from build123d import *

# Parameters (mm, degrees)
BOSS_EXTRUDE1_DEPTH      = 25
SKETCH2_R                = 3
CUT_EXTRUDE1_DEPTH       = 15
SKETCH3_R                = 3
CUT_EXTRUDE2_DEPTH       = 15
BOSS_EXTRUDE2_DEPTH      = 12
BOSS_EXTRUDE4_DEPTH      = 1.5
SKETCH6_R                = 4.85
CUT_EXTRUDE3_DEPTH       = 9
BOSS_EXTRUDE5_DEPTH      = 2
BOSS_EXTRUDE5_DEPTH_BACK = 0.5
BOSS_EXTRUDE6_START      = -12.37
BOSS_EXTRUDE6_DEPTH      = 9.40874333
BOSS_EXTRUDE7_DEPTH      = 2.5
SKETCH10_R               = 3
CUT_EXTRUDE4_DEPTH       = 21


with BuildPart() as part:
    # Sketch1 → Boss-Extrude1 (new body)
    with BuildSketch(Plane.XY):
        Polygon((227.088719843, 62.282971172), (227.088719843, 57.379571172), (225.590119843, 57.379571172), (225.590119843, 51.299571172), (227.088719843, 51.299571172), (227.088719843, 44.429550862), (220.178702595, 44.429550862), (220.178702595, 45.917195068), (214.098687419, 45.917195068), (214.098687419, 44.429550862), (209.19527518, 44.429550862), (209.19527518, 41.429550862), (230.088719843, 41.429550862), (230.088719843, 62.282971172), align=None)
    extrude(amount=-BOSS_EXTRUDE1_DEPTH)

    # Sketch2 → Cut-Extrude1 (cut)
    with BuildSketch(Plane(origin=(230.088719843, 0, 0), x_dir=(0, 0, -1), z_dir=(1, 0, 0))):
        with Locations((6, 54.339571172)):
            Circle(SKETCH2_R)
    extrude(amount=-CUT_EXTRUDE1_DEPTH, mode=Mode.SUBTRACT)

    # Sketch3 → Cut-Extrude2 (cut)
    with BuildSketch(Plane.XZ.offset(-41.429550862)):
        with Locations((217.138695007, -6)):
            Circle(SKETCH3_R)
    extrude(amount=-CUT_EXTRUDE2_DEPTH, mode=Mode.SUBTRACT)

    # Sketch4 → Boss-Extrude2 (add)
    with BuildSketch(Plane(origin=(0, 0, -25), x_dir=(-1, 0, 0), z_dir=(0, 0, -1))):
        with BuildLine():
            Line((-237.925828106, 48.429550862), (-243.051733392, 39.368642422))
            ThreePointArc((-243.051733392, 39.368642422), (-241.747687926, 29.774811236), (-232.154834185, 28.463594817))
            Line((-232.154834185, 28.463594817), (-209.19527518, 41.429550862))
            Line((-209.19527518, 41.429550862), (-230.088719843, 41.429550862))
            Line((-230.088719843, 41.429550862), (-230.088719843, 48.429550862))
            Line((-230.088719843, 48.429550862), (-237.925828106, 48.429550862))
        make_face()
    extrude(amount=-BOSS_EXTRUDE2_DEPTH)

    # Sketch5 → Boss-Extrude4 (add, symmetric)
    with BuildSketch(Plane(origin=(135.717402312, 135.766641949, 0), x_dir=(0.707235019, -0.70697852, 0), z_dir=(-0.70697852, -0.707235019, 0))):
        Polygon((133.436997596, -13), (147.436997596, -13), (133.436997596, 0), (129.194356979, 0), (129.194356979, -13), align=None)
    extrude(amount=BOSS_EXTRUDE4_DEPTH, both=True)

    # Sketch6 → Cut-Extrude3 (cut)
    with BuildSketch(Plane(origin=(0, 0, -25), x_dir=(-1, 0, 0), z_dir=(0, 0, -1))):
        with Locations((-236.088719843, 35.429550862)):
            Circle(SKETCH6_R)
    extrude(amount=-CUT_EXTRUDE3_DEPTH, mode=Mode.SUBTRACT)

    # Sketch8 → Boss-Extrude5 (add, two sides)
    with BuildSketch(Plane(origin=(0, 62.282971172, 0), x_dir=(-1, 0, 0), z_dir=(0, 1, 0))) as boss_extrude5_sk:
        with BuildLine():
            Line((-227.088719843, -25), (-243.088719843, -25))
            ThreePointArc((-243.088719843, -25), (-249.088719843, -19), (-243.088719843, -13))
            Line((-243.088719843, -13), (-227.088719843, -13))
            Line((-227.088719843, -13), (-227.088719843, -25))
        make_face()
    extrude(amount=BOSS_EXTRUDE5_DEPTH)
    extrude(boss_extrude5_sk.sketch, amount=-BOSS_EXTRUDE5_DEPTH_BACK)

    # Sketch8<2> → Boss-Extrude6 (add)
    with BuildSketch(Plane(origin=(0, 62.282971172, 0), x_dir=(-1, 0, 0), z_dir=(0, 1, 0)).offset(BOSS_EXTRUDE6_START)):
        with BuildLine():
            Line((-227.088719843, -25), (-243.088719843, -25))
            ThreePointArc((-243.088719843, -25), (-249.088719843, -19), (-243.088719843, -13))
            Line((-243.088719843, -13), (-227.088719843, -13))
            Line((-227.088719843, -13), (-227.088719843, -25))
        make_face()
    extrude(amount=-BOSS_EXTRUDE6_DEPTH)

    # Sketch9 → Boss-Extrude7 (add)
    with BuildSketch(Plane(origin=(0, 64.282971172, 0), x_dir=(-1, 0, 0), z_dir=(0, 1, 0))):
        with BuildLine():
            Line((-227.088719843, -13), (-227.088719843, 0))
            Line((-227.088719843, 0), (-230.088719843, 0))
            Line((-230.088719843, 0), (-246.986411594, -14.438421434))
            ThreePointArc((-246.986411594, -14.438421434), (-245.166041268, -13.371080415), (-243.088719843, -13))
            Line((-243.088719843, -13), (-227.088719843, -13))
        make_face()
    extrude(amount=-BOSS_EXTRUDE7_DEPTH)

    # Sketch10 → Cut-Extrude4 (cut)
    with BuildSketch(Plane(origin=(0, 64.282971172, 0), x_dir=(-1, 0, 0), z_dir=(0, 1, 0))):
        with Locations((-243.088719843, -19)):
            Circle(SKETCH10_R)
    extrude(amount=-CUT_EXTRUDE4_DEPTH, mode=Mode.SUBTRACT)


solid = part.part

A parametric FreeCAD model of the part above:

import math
import FreeCAD as App
import Part
import Sketcher
from FreeCAD import Vector

doc = App.newDocument("Part")
params = doc.addObject("Spreadsheet::Sheet", "Params")
for row, (alias, value) in enumerate([
    ("sketch1_width", "3 mm"),
    ("sketch1_height", "6.08 mm"),
    ("pad1_length", "25 mm"),
    ("sketch2_diameter", "6 mm"),
    ("pocket1_length", "15 mm"),
    ("sketch3_diameter", "6 mm"),
    ("pocket2_length", "15 mm"),
    ("sketch4_radius", "8 mm"),
    ("sketch4_height", "7 mm"),
    ("pad2_length", "12 mm"),
    ("sketch5_height", "13 mm"),
    ("pad3_length", "3 mm"),
    ("sketch6_diameter", "9.7 mm"),
    ("pocket3_length", "9 mm"),
    ("sketch7_radius", "6 mm"),
    ("sketch7_width", "16 mm"),
    ("pad4_length", "2 mm"),
    ("pad4_length2", "0.5 mm"),
    ("sketch8_radius", "6 mm"),
    ("sketch8_width", "16 mm"),
    ("pad5_length", "9.408743 mm"),
    ("sketch9_radius", "6 mm"),
    ("sketch9_width", "3 mm"),
    ("sketch9_width2", "16 mm"),
    ("sketch9_height", "13 mm"),
    ("pad6_length", "2.5 mm"),
    ("sketch10_diameter", "6 mm"),
    ("pocket4_length", "21 mm"),
], start=1):
    params.set(f"A{row}", alias)
    params.set(f"B{row}", "=" + value)
    params.setAlias(f"B{row}", alias)

body = doc.addObject("PartDesign::Body", "Body")

sketch1 = body.newObject("Sketcher::SketchObject", "Sketch")
sketch1.AttachmentSupport = (doc.getObject("XY_Plane"), [""])
sketch1.MapMode = "FlatFace"
sketch1.addGeometry([
    Part.LineSegment(Vector(227.1, 62.3, 0), Vector(227.1, 57.4, 0)),
    Part.LineSegment(Vector(227.1, 57.4, 0), Vector(225.6, 57.4, 0)),
    Part.LineSegment(Vector(225.6, 57.4, 0), Vector(225.6, 51.3, 0)),
    Part.LineSegment(Vector(225.6, 51.3, 0), Vector(227.1, 51.3, 0)),
    Part.LineSegment(Vector(227.1, 51.3, 0), Vector(227.1, 44.4, 0)),
    Part.LineSegment(Vector(227.1, 44.4, 0), Vector(220.2, 44.4, 0)),
    Part.LineSegment(Vector(220.2, 44.4, 0), Vector(220.2, 45.9, 0)),
    Part.LineSegment(Vector(220.2, 45.9, 0), Vector(214.1, 45.9, 0)),
    Part.LineSegment(Vector(214.1, 45.9, 0), Vector(214.1, 44.4, 0)),
    Part.LineSegment(Vector(214.1, 44.4, 0), Vector(209.2, 44.4, 0)),
    Part.LineSegment(Vector(209.2, 44.4, 0), Vector(209.2, 41.4, 0)),
    Part.LineSegment(Vector(209.2, 41.4, 0), Vector(230.1, 41.4, 0)),
    Part.LineSegment(Vector(230.1, 41.4, 0), Vector(230.1, 62.3, 0)),
    Part.LineSegment(Vector(230.1, 62.3, 0), Vector(227.1, 62.3, 0)),
], False)
sketch1.addConstraint([
    Sketcher.Constraint("Coincident", 0, 2, 1, 1),
    Sketcher.Constraint("Coincident", 1, 2, 2, 1),
    Sketcher.Constraint("Coincident", 2, 2, 3, 1),
    Sketcher.Constraint("Coincident", 3, 2, 4, 1),
    Sketcher.Constraint("Coincident", 4, 2, 5, 1),
    Sketcher.Constraint("Coincident", 5, 2, 6, 1),
    Sketcher.Constraint("Coincident", 6, 2, 7, 1),
    Sketcher.Constraint("Coincident", 7, 2, 8, 1),
    Sketcher.Constraint("Coincident", 8, 2, 9, 1),
    Sketcher.Constraint("Coincident", 9, 2, 10, 1),
    Sketcher.Constraint("Coincident", 10, 2, 11, 1),
    Sketcher.Constraint("Coincident", 11, 2, 12, 1),
    Sketcher.Constraint("Coincident", 12, 2, 13, 1),
    Sketcher.Constraint("Coincident", 13, 2, 0, 1),
    Sketcher.Constraint("Vertical", 0),
    Sketcher.Constraint("Horizontal", 1),
    Sketcher.Constraint("Vertical", 2),
    Sketcher.Constraint("Horizontal", 3),
    Sketcher.Constraint("Vertical", 4),
    Sketcher.Constraint("Horizontal", 5),
    Sketcher.Constraint("Vertical", 6),
    Sketcher.Constraint("Horizontal", 7),
    Sketcher.Constraint("Vertical", 8),
    Sketcher.Constraint("Horizontal", 9),
    Sketcher.Constraint("Vertical", 10),
    Sketcher.Constraint("Horizontal", 11),
    Sketcher.Constraint("Vertical", 12),
    Sketcher.Constraint("Horizontal", 13),
    Sketcher.Constraint("Horizontal", 5, 2, 8, 2),
    Sketcher.Constraint("Vertical", 0, 2, 3, 2),
    Sketcher.Constraint("Equal", 13, 10),
    Sketcher.Constraint("DistanceX", 13, 2, 13, 1, 3.0),
    Sketcher.Constraint("DistanceY", 2, 2, 2, 1, 6.08),
    Sketcher.Constraint("DistanceX", 1, 2, 1, 1, 1.4986),
    Sketcher.Constraint("DistanceY", 0, 2, 0, 1, 4.9034),
    Sketcher.Constraint("DistanceY", 4, 2, 4, 1, 6.87002),
    Sketcher.Constraint("DistanceX", 5, 2, 5, 1, 6.910017),
    Sketcher.Constraint("DistanceX", 7, 2, 7, 1, 6.080015),
    Sketcher.Constraint("DistanceX", 9, 2, 9, 1, 4.903412),
    Sketcher.Constraint("DistanceY", 6, 1, 6, 2, 1.487644),
    Sketcher.Constraint("DistanceX", -1, 1, 0, 2, 227.08872),
    Sketcher.Constraint("DistanceY", -1, 1, 0, 2, 57.379571),
])
sketch1.setExpression("Constraints[31]", "Params.sketch1_width")
sketch1.setExpression("Constraints[32]", "Params.sketch1_height")
pad1 = body.newObject("PartDesign::Pad", "Pad")
pad1.Profile = sketch1
pad1.setExpression("Length", "Params.pad1_length")
pad1.Reversed = True

sketch2 = body.newObject("Sketcher::SketchObject", "Sketch001")
sketch2.AttachmentSupport = (doc.getObject("YZ_Plane"), [""])
sketch2.MapMode = "FlatFace"
sketch2.AttachmentOffset = App.Placement(Vector(0, 0, 230.08872), App.Rotation())
sketch2.addGeometry(Part.Circle(Vector(54.3, -6, 0), Vector(0, 0, 1), 3), False)
sketch2.addConstraint([
    Sketcher.Constraint("Diameter", 0, 6.0),
    Sketcher.Constraint("DistanceY", 0, 3, -1, 1, 6.0),
    Sketcher.Constraint("DistanceX", -1, 1, 0, 3, 54.339571),
])
sketch2.setExpression("Constraints[0]", "Params.sketch2_diameter")
pocket1 = body.newObject("PartDesign::Pocket", "Pocket")
pocket1.Profile = sketch2
pocket1.setExpression("Length", "Params.pocket1_length")

sketch3 = body.newObject("Sketcher::SketchObject", "Sketch002")
sketch3.AttachmentSupport = (doc.getObject("XZ_Plane"), [""])
sketch3.MapMode = "FlatFace"
sketch3.AttachmentOffset = App.Placement(Vector(0, 0, -41.429551), App.Rotation())
sketch3.addGeometry(Part.Circle(Vector(217.1, -6, 0), Vector(0, 0, 1), 3), False)
sketch3.addConstraint([
    Sketcher.Constraint("Diameter", 0, 6.0),
    Sketcher.Constraint("DistanceY", 0, 3, -1, 1, 6.0),
    Sketcher.Constraint("DistanceX", -1, 1, 0, 3, 217.138695),
])
sketch3.setExpression("Constraints[0]", "Params.sketch3_diameter")
pocket2 = body.newObject("PartDesign::Pocket", "Pocket001")
pocket2.Profile = sketch3
pocket2.setExpression("Length", "Params.pocket2_length")

sketch4 = body.newObject("Sketcher::SketchObject", "Sketch003")
sketch4.AttachmentSupport = (doc.getObject("XY_Plane"), [""])
sketch4.MapMode = "FlatFace"
sketch4.AttachmentOffset = App.Placement(Vector(0, 0, -25), App.Rotation())
sketch4.addGeometry([
    Part.LineSegment(Vector(238, 48, 0), Vector(243, 39, 0)),
    Part.ArcOfCircle(Part.Circle(Vector(236, 35, 0), Vector(0, 0, 1), 8), math.radians(-119), math.radians(29)),
    Part.LineSegment(Vector(232, 28, 0), Vector(209, 41, 0)),
    Part.LineSegment(Vector(209, 41, 0), Vector(230, 41, 0)),
    Part.LineSegment(Vector(230, 41, 0), Vector(230, 48, 0)),
    Part.LineSegment(Vector(230, 48, 0), Vector(238, 48, 0)),
], False)
sketch4.addConstraint([
    Sketcher.Constraint("Tangent", 0, 2, 1, 2),
    Sketcher.Constraint("Tangent", 1, 1, 2, 1),
    Sketcher.Constraint("Coincident", 2, 2, 3, 1),
    Sketcher.Constraint("Coincident", 3, 2, 4, 1),
    Sketcher.Constraint("Coincident", 4, 2, 5, 1),
    Sketcher.Constraint("Coincident", 5, 2, 0, 1),
    Sketcher.Constraint("Horizontal", 3),
    Sketcher.Constraint("Vertical", 4),
    Sketcher.Constraint("Horizontal", 5),
    Sketcher.Constraint("Radius", 1, 8.0),
    Sketcher.Constraint("DistanceY", 4, 1, 4, 2, 7.0),
    Sketcher.Constraint("DistanceY", 1, 3, 2, 2, 6.0),
    Sketcher.Constraint("DistanceX", 3, 2, 1, 3, 6.0),
    Sketcher.Constraint("DistanceX", 5, 1, 5, 2, 7.837108),
    Sketcher.Constraint("DistanceX", 1, 1, 0, 2, 10.896899),
    Sketcher.Constraint("DistanceX", -1, 1, 1, 3, 236.08872),
    Sketcher.Constraint("DistanceY", -1, 1, 1, 3, 35.429551),
])
sketch4.setExpression("Constraints[9]", "Params.sketch4_radius")
sketch4.setExpression("Constraints[10]", "Params.sketch4_height")
pad2 = body.newObject("PartDesign::Pad", "Pad001")
pad2.Profile = sketch4
pad2.setExpression("Length", "Params.pad2_length")

sketch5 = body.newObject("Sketcher::SketchObject", "Sketch004")
sketch5.Placement = App.Placement(Vector(135.717402, 135.766642, 0), App.Rotation(Vector(0.707235019, -0.70697852, 0), Vector(0, 0, 1), Vector(-0.70697852, -0.707235019, 0), "ZXY"))
sketch5.addGeometry([
    Part.LineSegment(Vector(147.4, -13, 0), Vector(133.4, 0, 0)),
    Part.LineSegment(Vector(133.4, 0, 0), Vector(129.2, 0, 0)),
    Part.LineSegment(Vector(129.2, 0, 0), Vector(129.2, -13, 0)),
    Part.LineSegment(Vector(129.2, -13, 0), Vector(147.4, -13, 0)),
], False)
sketch5.addConstraint([
    Sketcher.Constraint("Coincident", 0, 2, 1, 1),
    Sketcher.Constraint("Coincident", 1, 2, 2, 1),
    Sketcher.Constraint("Coincident", 2, 2, 3, 1),
    Sketcher.Constraint("Coincident", 3, 2, 0, 1),
    Sketcher.Constraint("Horizontal", 1),
    Sketcher.Constraint("Vertical", 2),
    Sketcher.Constraint("Horizontal", 3),
    Sketcher.Constraint("PointOnObject", 0, 2, -1),
    Sketcher.Constraint("DistanceY", 2, 2, 2, 1, 13.0),
    Sketcher.Constraint("DistanceX", 0, 2, 3, 2, 14.0),
    Sketcher.Constraint("DistanceX", 1, 2, 1, 1, 4.242641),
    Sketcher.Constraint("DistanceX", -1, 1, 0, 2, 133.436998),
])
sketch5.setExpression("Constraints[8]", "Params.sketch5_height")
pad3 = body.newObject("PartDesign::Pad", "Pad002")
pad3.Profile = sketch5
pad3.setExpression("Length", "Params.pad3_length")
pad3.Midplane = True

sketch6 = body.newObject("Sketcher::SketchObject", "Sketch005")
sketch6.AttachmentSupport = (doc.getObject("XY_Plane"), [""])
sketch6.MapMode = "FlatFace"
sketch6.AttachmentOffset = App.Placement(Vector(0, 0, -25), App.Rotation())
sketch6.addGeometry(Part.Circle(Vector(236.1, 35.4, 0), Vector(0, 0, 1), 4.8), False)
sketch6.addConstraint([
    Sketcher.Constraint("Diameter", 0, 9.7),
    Sketcher.Constraint("DistanceX", -1, 1, 0, 3, 236.08872),
    Sketcher.Constraint("DistanceY", -1, 1, 0, 3, 35.429551),
])
sketch6.setExpression("Constraints[0]", "Params.sketch6_diameter")
pocket3 = body.newObject("PartDesign::Pocket", "Pocket002")
pocket3.Profile = sketch6
pocket3.setExpression("Length", "Params.pocket3_length")
pocket3.Reversed = True

sketch7 = body.newObject("Sketcher::SketchObject", "Sketch006")
sketch7.AttachmentSupport = (doc.getObject("XZ_Plane"), [""])
sketch7.MapMode = "FlatFace"
sketch7.AttachmentOffset = App.Placement(Vector(0, 0, -62.282971), App.Rotation())
sketch7.addGeometry([
    Part.LineSegment(Vector(243, -25, 0), Vector(227, -25, 0)),
    Part.LineSegment(Vector(227, -25, 0), Vector(227, -13, 0)),
    Part.LineSegment(Vector(227, -13, 0), Vector(243, -13, 0)),
    Part.ArcOfCircle(Part.Circle(Vector(243, -19, 0), Vector(0, 0, 1), 6), math.radians(-90), math.radians(90)),
], False)
sketch7.addConstraint([
    Sketcher.Constraint("Coincident", 0, 2, 1, 1),
    Sketcher.Constraint("Coincident", 1, 2, 2, 1),
    Sketcher.Constraint("Tangent", 2, 2, 3, 2),
    Sketcher.Constraint("Tangent", 3, 1, 0, 1),
    Sketcher.Constraint("Horizontal", 0),
    Sketcher.Constraint("Vertical", 1),
    Sketcher.Constraint("Horizontal", 2),
    Sketcher.Constraint("Radius", 3, 6.0),
    Sketcher.Constraint("DistanceX", 0, 2, 0, 1, 16.0),
    Sketcher.Constraint("DistanceY", 3, 3, -1, 1, 19.0),
    Sketcher.Constraint("DistanceX", -1, 1, 3, 3, 243.08872),
])
sketch7.setExpression("Constraints[7]", "Params.sketch7_radius")
sketch7.setExpression("Constraints[8]", "Params.sketch7_width")
pad4 = body.newObject("PartDesign::Pad", "Pad003")
pad4.Profile = sketch7
pad4.Type = "TwoLengths"
pad4.setExpression("Length", "Params.pad4_length")
pad4.setExpression("Length2", "Params.pad4_length2")
pad4.Reversed = True

sketch8 = body.newObject("Sketcher::SketchObject", "Sketch007")
sketch8.AttachmentSupport = (doc.getObject("XZ_Plane"), [""])
sketch8.MapMode = "FlatFace"
sketch8.AttachmentOffset = App.Placement(Vector(0, 0, -49.912971), App.Rotation())
sketch8.addGeometry([
    Part.LineSegment(Vector(243, -25, 0), Vector(227, -25, 0)),
    Part.LineSegment(Vector(227, -25, 0), Vector(227, -13, 0)),
    Part.LineSegment(Vector(227, -13, 0), Vector(243, -13, 0)),
    Part.ArcOfCircle(Part.Circle(Vector(243, -19, 0), Vector(0, 0, 1), 6), math.radians(-90), math.radians(90)),
], False)
sketch8.addConstraint([
    Sketcher.Constraint("Coincident", 0, 2, 1, 1),
    Sketcher.Constraint("Coincident", 1, 2, 2, 1),
    Sketcher.Constraint("Tangent", 2, 2, 3, 2),
    Sketcher.Constraint("Tangent", 3, 1, 0, 1),
    Sketcher.Constraint("Horizontal", 0),
    Sketcher.Constraint("Vertical", 1),
    Sketcher.Constraint("Horizontal", 2),
    Sketcher.Constraint("Radius", 3, 6.0),
    Sketcher.Constraint("DistanceX", 0, 2, 0, 1, 16.0),
    Sketcher.Constraint("DistanceY", 3, 3, -1, 1, 19.0),
    Sketcher.Constraint("DistanceX", -1, 1, 3, 3, 243.08872),
])
sketch8.setExpression("Constraints[7]", "Params.sketch8_radius")
sketch8.setExpression("Constraints[8]", "Params.sketch8_width")
pad5 = body.newObject("PartDesign::Pad", "Pad004")
pad5.Profile = sketch8
pad5.setExpression("Length", "Params.pad5_length")

sketch9 = body.newObject("Sketcher::SketchObject", "Sketch008")
sketch9.AttachmentSupport = (doc.getObject("XZ_Plane"), [""])
sketch9.MapMode = "FlatFace"
sketch9.AttachmentOffset = App.Placement(Vector(0, 0, -64.282971), App.Rotation())
sketch9.addGeometry([
    Part.LineSegment(Vector(227.1, -13, 0), Vector(227.1, 0, 0)),
    Part.LineSegment(Vector(227.1, 0, 0), Vector(230.1, 0, 0)),
    Part.LineSegment(Vector(230.1, 0, 0), Vector(247, -14.4, 0)),
    Part.ArcOfCircle(Part.Circle(Vector(243.1, -19, 0), Vector(0, 0, 1), 6), math.radians(49), math.radians(90)),
    Part.LineSegment(Vector(243.1, -13, 0), Vector(227.1, -13, 0)),
], False)
sketch9.addConstraint([
    Sketcher.Constraint("Coincident", 0, 2, 1, 1),
    Sketcher.Constraint("Coincident", 1, 2, 2, 1),
    Sketcher.Constraint("Tangent", 2, 2, 3, 1),
    Sketcher.Constraint("Tangent", 3, 2, 4, 1),
    Sketcher.Constraint("Coincident", 4, 2, 0, 1),
    Sketcher.Constraint("Vertical", 0),
    Sketcher.Constraint("Horizontal", 1),
    Sketcher.Constraint("Horizontal", 4),
    Sketcher.Constraint("PointOnObject", 0, 2, -1),
    Sketcher.Constraint("Radius", 3, 6.0),
    Sketcher.Constraint("DistanceX", 1, 1, 1, 2, 3.0),
    Sketcher.Constraint("DistanceX", 4, 2, 4, 1, 16.0),
    Sketcher.Constraint("DistanceY", 0, 1, 0, 2, 13.0),
    Sketcher.Constraint("DistanceX", -1, 1, 3, 3, 243.08872),
])
sketch9.setExpression("Constraints[9]", "Params.sketch9_radius")
sketch9.setExpression("Constraints[10]", "Params.sketch9_width")
sketch9.setExpression("Constraints[11]", "Params.sketch9_width2")
sketch9.setExpression("Constraints[12]", "Params.sketch9_height")
pad6 = body.newObject("PartDesign::Pad", "Pad005")
pad6.Profile = sketch9
pad6.setExpression("Length", "Params.pad6_length")

sketch10 = body.newObject("Sketcher::SketchObject", "Sketch009")
sketch10.AttachmentSupport = (doc.getObject("XZ_Plane"), [""])
sketch10.MapMode = "FlatFace"
sketch10.AttachmentOffset = App.Placement(Vector(0, 0, -64.282971), App.Rotation())
sketch10.addGeometry(Part.Circle(Vector(243.1, -19, 0), Vector(0, 0, 1), 3), False)
sketch10.addConstraint([
    Sketcher.Constraint("Diameter", 0, 6.0),
    Sketcher.Constraint("DistanceY", 0, 3, -1, 1, 19.0),
    Sketcher.Constraint("DistanceX", -1, 1, 0, 3, 243.08872),
])
sketch10.setExpression("Constraints[0]", "Params.sketch10_diameter")
pocket4 = body.newObject("PartDesign::Pocket", "Pocket003")
pocket4.Profile = sketch10
pocket4.setExpression("Length", "Params.pocket4_length")
pocket4.Reversed = True

doc.recompute()
